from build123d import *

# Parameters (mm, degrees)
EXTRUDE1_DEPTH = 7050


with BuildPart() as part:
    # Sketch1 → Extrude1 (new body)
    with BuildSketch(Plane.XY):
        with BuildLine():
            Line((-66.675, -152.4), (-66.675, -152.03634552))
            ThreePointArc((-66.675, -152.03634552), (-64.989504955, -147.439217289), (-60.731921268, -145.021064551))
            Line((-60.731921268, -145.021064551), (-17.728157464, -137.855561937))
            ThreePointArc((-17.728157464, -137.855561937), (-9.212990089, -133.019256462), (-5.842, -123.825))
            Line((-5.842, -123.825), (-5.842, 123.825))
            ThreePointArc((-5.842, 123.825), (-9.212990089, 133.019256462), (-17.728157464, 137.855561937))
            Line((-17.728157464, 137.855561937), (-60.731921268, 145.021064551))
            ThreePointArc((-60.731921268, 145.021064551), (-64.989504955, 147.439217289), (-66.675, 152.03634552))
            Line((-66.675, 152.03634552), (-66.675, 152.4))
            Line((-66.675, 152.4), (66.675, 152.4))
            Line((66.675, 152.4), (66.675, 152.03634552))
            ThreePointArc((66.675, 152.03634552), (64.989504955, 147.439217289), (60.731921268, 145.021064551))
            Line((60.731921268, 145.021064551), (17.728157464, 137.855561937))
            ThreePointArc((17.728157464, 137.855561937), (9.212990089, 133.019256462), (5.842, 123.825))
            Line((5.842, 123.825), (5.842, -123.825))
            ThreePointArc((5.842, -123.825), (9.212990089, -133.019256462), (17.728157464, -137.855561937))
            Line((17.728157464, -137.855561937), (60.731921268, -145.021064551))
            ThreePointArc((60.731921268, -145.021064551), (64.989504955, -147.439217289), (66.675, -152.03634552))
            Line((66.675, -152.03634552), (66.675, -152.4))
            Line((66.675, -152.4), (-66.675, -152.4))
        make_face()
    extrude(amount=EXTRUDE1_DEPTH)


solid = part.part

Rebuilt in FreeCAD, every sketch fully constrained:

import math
import FreeCAD as App
import Part
import Sketcher
from FreeCAD import Vector
Q = App.Units.Quantity

doc = App.newDocument("Part")
body = doc.addObject("PartDesign::Body", "Body")

sketch1 = body.newObject("Sketcher::SketchObject", "Sketch")
sketch1.AttachmentSupport = (doc.getObject("XY_Plane"), [""])
sketch1.MapMode = "FlatFace"
sketch1.addGeometry([
    Part.LineSegment(Vector(-66.67, -152.04, 0), Vector(-66.67, -152.4, 0)),
    Part.LineSegment(Vector(-66.67, -152.4, 0), Vector(66.67, -152.4, 0)),
    Part.LineSegment(Vector(66.67, -152.4, 0), Vector(66.67, -152.04, 0)),
    Part.ArcOfCircle(Part.Circle(Vector(59.56, -152.04, 0), Vector(0, 0, 1), 7.11), math.radians(0), math.radians(81)),
    Part.LineSegment(Vector(60.73, -145.02, 0), Vector(17.73, -137.86, 0)),
    Part.ArcOfCircle(Part.Circle(Vector(20.07, -123.83, 0), Vector(0, 0, 1), 14.22), math.radians(180), math.radians(261)),
    Part.LineSegment(Vector(5.84, -123.83, 0), Vector(5.84, 123.83, 0)),
    Part.ArcOfCircle(Part.Circle(Vector(20.07, 123.83, 0), Vector(0, 0, 1), 14.22), math.radians(99), math.radians(180)),
    Part.LineSegment(Vector(17.73, 137.86, 0), Vector(60.73, 145.02, 0)),
    Part.ArcOfCircle(Part.Circle(Vector(59.56, 152.04, 0), Vector(0, 0, 1), 7.11), math.radians(-81), math.radians(0)),
    Part.LineSegment(Vector(66.67, 152.04, 0), Vector(66.67, 152.4, 0)),
    Part.LineSegment(Vector(66.67, 152.4, 0), Vector(-66.67, 152.4, 0)),
    Part.LineSegment(Vector(-66.67, 152.4, 0), Vector(-66.67, 152.04, 0)),
    Part.ArcOfCircle(Part.Circle(Vector(-59.56, 152.04, 0), Vector(0, 0, 1), 7.11), math.radians(180), math.radians(261)),
    Part.LineSegment(Vector(-60.73, 145.02, 0), Vector(-17.73, 137.86, 0)),
    Part.ArcOfCircle(Part.Circle(Vector(-20.07, 123.83, 0), Vector(0, 0, 1), 14.22), math.radians(0), math.radians(81)),
    Part.LineSegment(Vector(-5.84, 123.83, 0), Vector(-5.84, -123.83, 0)),
    Part.ArcOfCircle(Part.Circle(Vector(-20.07, -123.83, 0), Vector(0, 0, 1), 14.22), math.radians(-81), math.radians(0)),
    Part.LineSegment(Vector(-17.73, -137.86, 0), Vector(-60.73, -145.02, 0)),
    Part.ArcOfCircle(Part.Circle(Vector(-59.56, -152.04, 0), Vector(0, 0, 1), 7.11), math.radians(99), math.radians(180)),
], False)
sketch1.addConstraint([
    Sketcher.Constraint("Coincident", 0, 2, 1, 1),
    Sketcher.Constraint("Coincident", 1, 2, 2, 1),
    Sketcher.Constraint("Tangent", 2, 2, 3, 1),
    Sketcher.Constraint("Tangent", 3, 2, 4, 1),
    Sketcher.Constraint("Tangent", 4, 2, 5, 2),
    Sketcher.Constraint("Tangent", 5, 1, 6, 1),
    Sketcher.Constraint("Tangent", 6, 2, 7, 2),
    Sketcher.Constraint("Tangent", 7, 1, 8, 1),
    Sketcher.Constraint("Tangent", 8, 2, 9, 1),
    Sketcher.Constraint("Tangent", 9, 2, 10, 1),
    Sketcher.Constraint("Coincident", 10, 2, 11, 1),
    Sketcher.Constraint("Coincident", 11, 2, 12, 1),
    Sketcher.Constraint("Tangent", 12, 2, 13, 1),
    Sketcher.Constraint("Tangent", 13, 2, 14, 1),
    Sketcher.Constraint("Tangent", 14, 2, 15, 2),
    Sketcher.Constraint("Tangent", 15, 1, 16, 1),
    Sketcher.Constraint("Tangent", 16, 2, 17, 2),
    Sketcher.Constraint("Tangent", 17, 1, 18, 1),
    Sketcher.Constraint("Tangent", 18, 2, 19, 1),
    Sketcher.Constraint("Tangent", 19, 2, 0, 1),
    Sketcher.Constraint("Vertical", 0),
    Sketcher.Constraint("Horizontal", 1),
    Sketcher.Constraint("Vertical", 2),
    Sketcher.Constraint("Vertical", 6),
    Sketcher.Constraint("Vertical", 10),
    Sketcher.Constraint("Horizontal", 11),
    Sketcher.Constraint("Vertical", 12),
    Sketcher.Constraint("Vertical", 16),
    Sketcher.Constraint("Equal", 5, 7),
    Sketcher.Constraint("Equal", 3, 9),
    Sketcher.Constraint("Equal", 9, 13),
    Sketcher.Constraint("Equal", 7, 15),
    Sketcher.Constraint("Equal", 15, 17),
    Sketcher.Constraint("Equal", 13, 19),
    Sketcher.Constraint("Symmetric", 3, 3, 13, 3, -1, 1),
    Sketcher.Constraint("Symmetric", 5, 3, 15, 3, -1, 1),
    Sketcher.Constraint("Symmetric", 9, 3, 19, 3, -1, 1),
    Sketcher.Constraint("Symmetric", 9, 3, 13, 3, -2),
    Sketcher.Constraint("Parallel", 8, 18),
    Sketcher.Constraint("Horizontal", 7, 3, 15, 3),
    Sketcher.Constraint("Equal", 2, 10),
    Sketcher.Constraint("Radius", 3, Q("0.28 in")),
    Sketcher.Constraint("Radius", 5, Q("0.56 in")),
    Sketcher.Constraint("DistanceY", 0, 2, -1, 1, Q("6 in")),
    Sketcher.Constraint("DistanceX", 1, 1, 1, 2, Q("5.25 in")),
    Sketcher.Constraint("DistanceY", 6, 1, 6, 2, Q("9.75 in")),
    Sketcher.Constraint("DistanceX", -1, 1, 5, 3, Q("0.79 in")),
    Sketcher.Constraint("Angle", 4, Q("170.54 deg")),
])
pad1 = body.newObject("PartDesign::Pad", "Pad")
pad1.Profile = sketch1
pad1.Length = 7050

doc.recompute()
